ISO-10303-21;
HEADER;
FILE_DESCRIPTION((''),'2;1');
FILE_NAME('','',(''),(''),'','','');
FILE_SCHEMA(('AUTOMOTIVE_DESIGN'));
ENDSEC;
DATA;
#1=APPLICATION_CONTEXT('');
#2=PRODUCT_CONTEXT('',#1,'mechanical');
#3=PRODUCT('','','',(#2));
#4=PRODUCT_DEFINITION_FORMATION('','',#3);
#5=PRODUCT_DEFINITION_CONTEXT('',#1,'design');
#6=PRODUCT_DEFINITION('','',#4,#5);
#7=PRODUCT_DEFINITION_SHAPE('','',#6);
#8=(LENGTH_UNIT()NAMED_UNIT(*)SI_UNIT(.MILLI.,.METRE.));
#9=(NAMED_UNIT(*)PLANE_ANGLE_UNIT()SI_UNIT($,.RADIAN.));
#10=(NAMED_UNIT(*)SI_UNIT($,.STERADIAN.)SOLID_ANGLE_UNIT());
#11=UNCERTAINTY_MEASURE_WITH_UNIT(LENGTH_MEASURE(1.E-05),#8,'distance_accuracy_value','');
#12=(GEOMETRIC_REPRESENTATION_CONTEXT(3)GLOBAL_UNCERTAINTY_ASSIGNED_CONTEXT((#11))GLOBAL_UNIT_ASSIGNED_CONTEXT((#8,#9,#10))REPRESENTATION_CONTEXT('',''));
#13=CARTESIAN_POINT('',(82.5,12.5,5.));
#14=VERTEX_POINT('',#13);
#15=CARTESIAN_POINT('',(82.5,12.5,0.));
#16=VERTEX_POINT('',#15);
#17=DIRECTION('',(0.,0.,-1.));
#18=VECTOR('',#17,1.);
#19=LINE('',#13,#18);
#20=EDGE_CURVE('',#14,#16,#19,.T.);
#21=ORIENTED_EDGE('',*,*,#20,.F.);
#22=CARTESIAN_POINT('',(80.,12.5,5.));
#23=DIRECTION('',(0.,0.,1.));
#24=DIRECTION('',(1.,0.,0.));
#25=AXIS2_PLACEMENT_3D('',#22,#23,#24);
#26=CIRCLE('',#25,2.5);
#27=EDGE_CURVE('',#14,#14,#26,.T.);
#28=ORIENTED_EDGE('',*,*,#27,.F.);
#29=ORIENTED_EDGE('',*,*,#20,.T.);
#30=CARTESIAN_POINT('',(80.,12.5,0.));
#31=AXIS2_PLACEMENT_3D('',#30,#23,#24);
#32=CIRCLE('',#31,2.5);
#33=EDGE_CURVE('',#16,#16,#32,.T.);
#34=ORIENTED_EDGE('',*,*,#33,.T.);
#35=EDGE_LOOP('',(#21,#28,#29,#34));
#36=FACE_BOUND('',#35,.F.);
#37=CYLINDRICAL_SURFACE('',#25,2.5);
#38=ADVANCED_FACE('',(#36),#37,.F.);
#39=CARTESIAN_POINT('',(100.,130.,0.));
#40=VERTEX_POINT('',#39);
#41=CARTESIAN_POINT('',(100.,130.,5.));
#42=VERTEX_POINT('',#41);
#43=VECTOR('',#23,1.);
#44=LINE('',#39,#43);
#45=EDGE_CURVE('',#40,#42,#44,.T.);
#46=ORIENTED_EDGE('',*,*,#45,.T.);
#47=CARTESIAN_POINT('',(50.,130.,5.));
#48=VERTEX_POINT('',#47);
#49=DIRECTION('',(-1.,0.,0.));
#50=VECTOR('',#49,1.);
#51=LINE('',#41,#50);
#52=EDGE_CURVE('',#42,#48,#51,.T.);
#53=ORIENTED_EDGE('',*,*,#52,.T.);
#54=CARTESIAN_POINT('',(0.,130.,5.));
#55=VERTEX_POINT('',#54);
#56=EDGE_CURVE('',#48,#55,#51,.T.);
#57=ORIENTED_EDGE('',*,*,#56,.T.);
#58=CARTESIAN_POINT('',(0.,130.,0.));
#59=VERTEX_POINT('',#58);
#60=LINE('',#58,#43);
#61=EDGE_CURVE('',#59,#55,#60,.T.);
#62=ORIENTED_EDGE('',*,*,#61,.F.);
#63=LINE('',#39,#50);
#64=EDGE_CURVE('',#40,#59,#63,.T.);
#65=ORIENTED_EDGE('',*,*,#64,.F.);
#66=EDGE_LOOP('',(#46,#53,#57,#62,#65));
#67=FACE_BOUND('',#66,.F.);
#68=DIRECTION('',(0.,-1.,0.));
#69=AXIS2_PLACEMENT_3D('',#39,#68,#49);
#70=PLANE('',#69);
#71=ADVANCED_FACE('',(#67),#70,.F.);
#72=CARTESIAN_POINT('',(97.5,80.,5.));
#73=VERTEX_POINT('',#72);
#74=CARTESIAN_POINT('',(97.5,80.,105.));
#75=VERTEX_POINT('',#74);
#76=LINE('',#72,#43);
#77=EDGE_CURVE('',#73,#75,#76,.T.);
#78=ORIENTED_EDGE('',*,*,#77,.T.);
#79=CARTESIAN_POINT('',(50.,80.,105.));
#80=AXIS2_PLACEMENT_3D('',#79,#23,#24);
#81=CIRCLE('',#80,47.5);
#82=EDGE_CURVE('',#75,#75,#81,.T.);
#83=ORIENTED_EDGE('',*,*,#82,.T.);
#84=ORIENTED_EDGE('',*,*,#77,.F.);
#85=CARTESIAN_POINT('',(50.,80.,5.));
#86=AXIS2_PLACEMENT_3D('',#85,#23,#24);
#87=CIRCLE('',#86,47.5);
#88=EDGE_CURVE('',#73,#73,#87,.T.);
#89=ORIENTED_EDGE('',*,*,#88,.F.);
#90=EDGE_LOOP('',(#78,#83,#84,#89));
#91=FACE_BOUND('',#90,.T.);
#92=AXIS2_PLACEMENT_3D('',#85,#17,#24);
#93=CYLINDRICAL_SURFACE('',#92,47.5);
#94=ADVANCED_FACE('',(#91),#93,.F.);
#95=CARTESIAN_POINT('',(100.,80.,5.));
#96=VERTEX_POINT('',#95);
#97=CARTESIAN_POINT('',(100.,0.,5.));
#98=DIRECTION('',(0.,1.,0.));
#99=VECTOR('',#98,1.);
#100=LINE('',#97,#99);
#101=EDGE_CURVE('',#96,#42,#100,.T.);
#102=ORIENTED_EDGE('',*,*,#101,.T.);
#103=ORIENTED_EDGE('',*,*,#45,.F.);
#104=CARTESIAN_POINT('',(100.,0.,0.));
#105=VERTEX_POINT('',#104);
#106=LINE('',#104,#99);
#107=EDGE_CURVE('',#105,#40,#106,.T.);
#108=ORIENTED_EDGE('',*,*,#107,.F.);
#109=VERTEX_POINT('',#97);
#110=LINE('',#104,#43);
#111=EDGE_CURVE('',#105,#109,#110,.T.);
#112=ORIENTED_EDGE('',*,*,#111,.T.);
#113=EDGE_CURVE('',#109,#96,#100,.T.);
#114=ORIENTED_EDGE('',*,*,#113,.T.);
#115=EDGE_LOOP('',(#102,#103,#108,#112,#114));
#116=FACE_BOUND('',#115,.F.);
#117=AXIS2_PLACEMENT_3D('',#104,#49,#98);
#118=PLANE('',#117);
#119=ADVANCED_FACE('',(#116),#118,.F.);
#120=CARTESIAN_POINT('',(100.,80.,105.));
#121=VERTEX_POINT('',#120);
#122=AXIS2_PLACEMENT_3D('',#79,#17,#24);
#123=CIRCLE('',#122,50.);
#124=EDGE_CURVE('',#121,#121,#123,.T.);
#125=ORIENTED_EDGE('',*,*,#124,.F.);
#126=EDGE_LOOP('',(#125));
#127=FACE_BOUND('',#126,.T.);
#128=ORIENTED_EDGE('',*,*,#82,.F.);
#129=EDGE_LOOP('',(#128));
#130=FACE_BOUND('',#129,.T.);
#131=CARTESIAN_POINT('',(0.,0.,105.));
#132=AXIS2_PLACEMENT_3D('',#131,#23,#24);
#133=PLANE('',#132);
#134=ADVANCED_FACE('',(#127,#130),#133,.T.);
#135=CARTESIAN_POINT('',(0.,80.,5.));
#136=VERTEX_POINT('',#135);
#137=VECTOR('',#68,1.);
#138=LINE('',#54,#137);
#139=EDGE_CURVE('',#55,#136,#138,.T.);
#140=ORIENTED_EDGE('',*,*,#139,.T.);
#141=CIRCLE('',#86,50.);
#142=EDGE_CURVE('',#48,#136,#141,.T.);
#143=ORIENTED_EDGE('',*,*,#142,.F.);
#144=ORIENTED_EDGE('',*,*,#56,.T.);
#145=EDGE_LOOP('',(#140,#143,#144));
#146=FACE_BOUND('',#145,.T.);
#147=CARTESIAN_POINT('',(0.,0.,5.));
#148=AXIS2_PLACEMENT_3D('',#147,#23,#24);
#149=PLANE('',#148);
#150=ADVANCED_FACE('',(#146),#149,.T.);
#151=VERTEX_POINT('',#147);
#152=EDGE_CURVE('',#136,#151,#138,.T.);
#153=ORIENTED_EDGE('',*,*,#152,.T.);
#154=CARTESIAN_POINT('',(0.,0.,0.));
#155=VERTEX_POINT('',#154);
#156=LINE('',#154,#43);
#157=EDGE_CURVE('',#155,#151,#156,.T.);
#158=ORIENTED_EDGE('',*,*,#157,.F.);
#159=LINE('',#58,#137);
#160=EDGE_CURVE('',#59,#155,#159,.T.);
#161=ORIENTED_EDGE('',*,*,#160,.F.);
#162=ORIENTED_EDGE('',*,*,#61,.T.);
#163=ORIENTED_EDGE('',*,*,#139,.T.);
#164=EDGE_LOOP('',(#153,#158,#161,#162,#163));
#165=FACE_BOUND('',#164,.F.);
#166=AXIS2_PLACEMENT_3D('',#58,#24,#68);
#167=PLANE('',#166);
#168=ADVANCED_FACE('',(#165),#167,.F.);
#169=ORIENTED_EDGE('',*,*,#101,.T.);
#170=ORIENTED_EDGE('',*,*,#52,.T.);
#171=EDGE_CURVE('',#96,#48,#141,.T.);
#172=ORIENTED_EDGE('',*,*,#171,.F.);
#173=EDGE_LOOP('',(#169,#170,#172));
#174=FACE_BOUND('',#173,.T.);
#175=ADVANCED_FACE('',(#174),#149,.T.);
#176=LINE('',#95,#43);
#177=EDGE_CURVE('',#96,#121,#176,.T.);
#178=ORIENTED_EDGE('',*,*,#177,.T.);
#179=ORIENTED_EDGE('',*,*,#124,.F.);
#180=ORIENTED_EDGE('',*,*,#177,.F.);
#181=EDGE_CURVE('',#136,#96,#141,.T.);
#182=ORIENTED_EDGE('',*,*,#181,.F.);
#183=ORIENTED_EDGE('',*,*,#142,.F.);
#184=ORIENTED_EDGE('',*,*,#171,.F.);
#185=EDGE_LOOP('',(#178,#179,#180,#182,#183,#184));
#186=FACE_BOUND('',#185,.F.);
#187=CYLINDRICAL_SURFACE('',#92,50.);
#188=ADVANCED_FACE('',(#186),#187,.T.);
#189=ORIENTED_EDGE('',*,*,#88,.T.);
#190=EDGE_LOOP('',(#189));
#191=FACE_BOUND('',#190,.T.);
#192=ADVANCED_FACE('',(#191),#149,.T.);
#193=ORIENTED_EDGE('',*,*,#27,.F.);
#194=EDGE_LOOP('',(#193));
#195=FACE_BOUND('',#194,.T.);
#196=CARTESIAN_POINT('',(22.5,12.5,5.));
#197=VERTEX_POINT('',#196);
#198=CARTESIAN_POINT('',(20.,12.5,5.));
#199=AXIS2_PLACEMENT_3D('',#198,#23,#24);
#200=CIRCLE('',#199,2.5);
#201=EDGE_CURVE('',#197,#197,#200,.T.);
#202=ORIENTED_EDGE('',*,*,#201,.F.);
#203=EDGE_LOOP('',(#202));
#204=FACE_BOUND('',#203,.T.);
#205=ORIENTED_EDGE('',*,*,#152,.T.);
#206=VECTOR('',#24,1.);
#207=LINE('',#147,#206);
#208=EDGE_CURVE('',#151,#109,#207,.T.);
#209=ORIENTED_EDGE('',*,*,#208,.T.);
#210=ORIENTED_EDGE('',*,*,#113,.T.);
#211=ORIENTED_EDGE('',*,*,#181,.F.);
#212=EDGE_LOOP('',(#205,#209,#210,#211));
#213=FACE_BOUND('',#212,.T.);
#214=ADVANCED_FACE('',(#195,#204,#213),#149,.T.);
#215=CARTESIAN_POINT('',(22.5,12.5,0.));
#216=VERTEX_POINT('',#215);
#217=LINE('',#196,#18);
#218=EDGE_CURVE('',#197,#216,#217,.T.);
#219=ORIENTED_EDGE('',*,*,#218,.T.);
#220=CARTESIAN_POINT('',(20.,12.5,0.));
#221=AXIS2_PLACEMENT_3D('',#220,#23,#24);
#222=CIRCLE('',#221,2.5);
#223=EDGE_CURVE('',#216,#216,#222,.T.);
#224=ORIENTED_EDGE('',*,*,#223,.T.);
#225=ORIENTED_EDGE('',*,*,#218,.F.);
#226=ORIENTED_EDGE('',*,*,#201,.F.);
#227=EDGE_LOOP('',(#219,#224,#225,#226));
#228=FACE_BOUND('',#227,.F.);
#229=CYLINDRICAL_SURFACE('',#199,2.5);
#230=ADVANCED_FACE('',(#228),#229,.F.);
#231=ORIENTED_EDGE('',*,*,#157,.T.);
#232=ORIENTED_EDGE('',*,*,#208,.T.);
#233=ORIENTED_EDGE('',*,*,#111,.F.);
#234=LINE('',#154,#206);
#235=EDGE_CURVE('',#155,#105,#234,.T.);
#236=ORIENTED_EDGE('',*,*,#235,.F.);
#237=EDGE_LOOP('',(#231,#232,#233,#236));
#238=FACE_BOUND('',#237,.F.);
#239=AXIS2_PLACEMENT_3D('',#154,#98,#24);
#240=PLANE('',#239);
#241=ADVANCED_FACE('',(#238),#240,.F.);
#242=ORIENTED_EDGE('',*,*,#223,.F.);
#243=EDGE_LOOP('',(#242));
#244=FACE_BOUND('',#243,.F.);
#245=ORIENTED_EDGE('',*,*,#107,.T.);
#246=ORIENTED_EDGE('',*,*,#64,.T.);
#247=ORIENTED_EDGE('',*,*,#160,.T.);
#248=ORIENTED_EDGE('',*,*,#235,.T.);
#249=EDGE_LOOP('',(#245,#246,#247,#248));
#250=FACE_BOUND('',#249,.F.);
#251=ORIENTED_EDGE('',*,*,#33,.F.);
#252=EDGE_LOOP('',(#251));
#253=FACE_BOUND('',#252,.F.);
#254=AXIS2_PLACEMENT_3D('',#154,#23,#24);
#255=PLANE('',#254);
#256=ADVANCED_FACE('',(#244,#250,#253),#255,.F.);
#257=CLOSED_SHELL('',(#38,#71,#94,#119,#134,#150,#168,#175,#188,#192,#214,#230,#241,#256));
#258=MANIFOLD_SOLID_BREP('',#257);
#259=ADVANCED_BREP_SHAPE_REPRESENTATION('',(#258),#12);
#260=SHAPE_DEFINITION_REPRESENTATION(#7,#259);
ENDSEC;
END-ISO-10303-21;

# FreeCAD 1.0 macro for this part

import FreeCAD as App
import Part
import Sketcher
from FreeCAD import Vector
Q = App.Units.Quantity


def add_polygon(sketch, points):
    """Adds a closed chain of lines whose ends are joined by coincident constraints."""
    first, n = sketch.GeometryCount, len(points)
    for a, b in zip(points, points[1:] + points[:1]):
        sketch.addGeometry(Part.LineSegment(App.Vector(*a, 0), App.Vector(*b, 0)), False)
    for i in range(n):
        sketch.addConstraint(Sketcher.Constraint("Coincident", first + i, 2, first + (i + 1) % n, 1))

doc = App.newDocument("Part")
body = doc.addObject("PartDesign::Body", "Body")

# Sketch on XY plane
sketch1 = body.newObject("Sketcher::SketchObject", "Sketch")
sketch1.AttachmentSupport = (doc.getObject("XY_Plane"), [""])
sketch1.MapMode = "FlatFace"
add_polygon(sketch1, [(0, 130), (0, 0), (100, 0), (100, 130)])  # lines 0-3
sketch1.addConstraint(Sketcher.Constraint("Vertical", 0))
sketch1.addConstraint(Sketcher.Constraint("Horizontal", 1))
sketch1.addConstraint(Sketcher.Constraint("Vertical", 2))
sketch1.addConstraint(Sketcher.Constraint("Horizontal", 3))
sketch1.addConstraint(Sketcher.Constraint("Coincident", 0, 2, -1, 1))
sketch1.addConstraint(Sketcher.Constraint("DistanceX", 1, 1, 1, 2, Q("100 mm")))
sketch1.addConstraint(Sketcher.Constraint("DistanceY", 0, 2, 0, 1, Q("130 mm")))
pad1 = body.newObject("PartDesign::Pad", "Pad")
pad1.Profile = sketch1
pad1.Length = 5

# Sketch on XY plane
sketch2 = body.newObject("Sketcher::SketchObject", "Sketch001")
sketch2.AttachmentSupport = (doc.getObject("XY_Plane"), [""])
sketch2.MapMode = "FlatFace"
sketch2.AttachmentOffset = App.Placement(Vector(0, 0, 5), App.Rotation())
sketch2.addGeometry(Part.Circle(Vector(50, 80, 0), Vector(0, 0, 1), 50), False)
sketch2.addGeometry(Part.Circle(Vector(50, 80, 0), Vector(0, 0, 1), 48), False)
sketch2.addConstraint(Sketcher.Constraint("Coincident", 1, 3, 0, 3))
sketch2.addConstraint(Sketcher.Constraint("Diameter", 1, Q("95 mm")))
sketch2.addConstraint(Sketcher.Constraint("Diameter", 0, Q("100 mm")))
sketch2.addConstraint(Sketcher.Constraint("DistanceX", -1, 1, 0, 3, Q("50 mm")))
sketch2.addConstraint(Sketcher.Constraint("DistanceY", -1, 1, 0, 3, Q("80 mm")))
pad2 = body.newObject("PartDesign::Pad", "Pad001")
pad2.Profile = sketch2
pad2.Length = 100

# Sketch on XY plane
sketch3 = body.newObject("Sketcher::SketchObject", "Sketch002")
sketch3.AttachmentSupport = (doc.getObject("XY_Plane"), [""])
sketch3.MapMode = "FlatFace"
sketch3.AttachmentOffset = App.Placement(Vector(0, 0, 5), App.Rotation())
sketch3.addGeometry(Part.Circle(Vector(80, 12.5, 0), Vector(0, 0, 1), 2.5), False)
sketch3.addGeometry(Part.Circle(Vector(20, 12.5, 0), Vector(0, 0, 1), 2.5), False)
sketch3.addConstraint(Sketcher.Constraint("Equal", 0, 1))
sketch3.addConstraint(Sketcher.Constraint("Horizontal", 0, 3, 1, 3))
sketch3.addConstraint(Sketcher.Constraint("Diameter", 0, Q("5 mm")))
sketch3.addConstraint(Sketcher.Constraint("DistanceX", -1, 1, 1, 3, Q("20 mm")))
sketch3.addConstraint(Sketcher.Constraint("DistanceY", -1, 1, 0, 3, Q("12.5 mm")))
sketch3.addConstraint(Sketcher.Constraint("DistanceX", -1, 1, 0, 3, Q("80 mm")))
pocket1 = body.newObject("PartDesign::Pocket", "Pocket")
pocket1.Profile = sketch3
pocket1.Length = 100

doc.recompute()
